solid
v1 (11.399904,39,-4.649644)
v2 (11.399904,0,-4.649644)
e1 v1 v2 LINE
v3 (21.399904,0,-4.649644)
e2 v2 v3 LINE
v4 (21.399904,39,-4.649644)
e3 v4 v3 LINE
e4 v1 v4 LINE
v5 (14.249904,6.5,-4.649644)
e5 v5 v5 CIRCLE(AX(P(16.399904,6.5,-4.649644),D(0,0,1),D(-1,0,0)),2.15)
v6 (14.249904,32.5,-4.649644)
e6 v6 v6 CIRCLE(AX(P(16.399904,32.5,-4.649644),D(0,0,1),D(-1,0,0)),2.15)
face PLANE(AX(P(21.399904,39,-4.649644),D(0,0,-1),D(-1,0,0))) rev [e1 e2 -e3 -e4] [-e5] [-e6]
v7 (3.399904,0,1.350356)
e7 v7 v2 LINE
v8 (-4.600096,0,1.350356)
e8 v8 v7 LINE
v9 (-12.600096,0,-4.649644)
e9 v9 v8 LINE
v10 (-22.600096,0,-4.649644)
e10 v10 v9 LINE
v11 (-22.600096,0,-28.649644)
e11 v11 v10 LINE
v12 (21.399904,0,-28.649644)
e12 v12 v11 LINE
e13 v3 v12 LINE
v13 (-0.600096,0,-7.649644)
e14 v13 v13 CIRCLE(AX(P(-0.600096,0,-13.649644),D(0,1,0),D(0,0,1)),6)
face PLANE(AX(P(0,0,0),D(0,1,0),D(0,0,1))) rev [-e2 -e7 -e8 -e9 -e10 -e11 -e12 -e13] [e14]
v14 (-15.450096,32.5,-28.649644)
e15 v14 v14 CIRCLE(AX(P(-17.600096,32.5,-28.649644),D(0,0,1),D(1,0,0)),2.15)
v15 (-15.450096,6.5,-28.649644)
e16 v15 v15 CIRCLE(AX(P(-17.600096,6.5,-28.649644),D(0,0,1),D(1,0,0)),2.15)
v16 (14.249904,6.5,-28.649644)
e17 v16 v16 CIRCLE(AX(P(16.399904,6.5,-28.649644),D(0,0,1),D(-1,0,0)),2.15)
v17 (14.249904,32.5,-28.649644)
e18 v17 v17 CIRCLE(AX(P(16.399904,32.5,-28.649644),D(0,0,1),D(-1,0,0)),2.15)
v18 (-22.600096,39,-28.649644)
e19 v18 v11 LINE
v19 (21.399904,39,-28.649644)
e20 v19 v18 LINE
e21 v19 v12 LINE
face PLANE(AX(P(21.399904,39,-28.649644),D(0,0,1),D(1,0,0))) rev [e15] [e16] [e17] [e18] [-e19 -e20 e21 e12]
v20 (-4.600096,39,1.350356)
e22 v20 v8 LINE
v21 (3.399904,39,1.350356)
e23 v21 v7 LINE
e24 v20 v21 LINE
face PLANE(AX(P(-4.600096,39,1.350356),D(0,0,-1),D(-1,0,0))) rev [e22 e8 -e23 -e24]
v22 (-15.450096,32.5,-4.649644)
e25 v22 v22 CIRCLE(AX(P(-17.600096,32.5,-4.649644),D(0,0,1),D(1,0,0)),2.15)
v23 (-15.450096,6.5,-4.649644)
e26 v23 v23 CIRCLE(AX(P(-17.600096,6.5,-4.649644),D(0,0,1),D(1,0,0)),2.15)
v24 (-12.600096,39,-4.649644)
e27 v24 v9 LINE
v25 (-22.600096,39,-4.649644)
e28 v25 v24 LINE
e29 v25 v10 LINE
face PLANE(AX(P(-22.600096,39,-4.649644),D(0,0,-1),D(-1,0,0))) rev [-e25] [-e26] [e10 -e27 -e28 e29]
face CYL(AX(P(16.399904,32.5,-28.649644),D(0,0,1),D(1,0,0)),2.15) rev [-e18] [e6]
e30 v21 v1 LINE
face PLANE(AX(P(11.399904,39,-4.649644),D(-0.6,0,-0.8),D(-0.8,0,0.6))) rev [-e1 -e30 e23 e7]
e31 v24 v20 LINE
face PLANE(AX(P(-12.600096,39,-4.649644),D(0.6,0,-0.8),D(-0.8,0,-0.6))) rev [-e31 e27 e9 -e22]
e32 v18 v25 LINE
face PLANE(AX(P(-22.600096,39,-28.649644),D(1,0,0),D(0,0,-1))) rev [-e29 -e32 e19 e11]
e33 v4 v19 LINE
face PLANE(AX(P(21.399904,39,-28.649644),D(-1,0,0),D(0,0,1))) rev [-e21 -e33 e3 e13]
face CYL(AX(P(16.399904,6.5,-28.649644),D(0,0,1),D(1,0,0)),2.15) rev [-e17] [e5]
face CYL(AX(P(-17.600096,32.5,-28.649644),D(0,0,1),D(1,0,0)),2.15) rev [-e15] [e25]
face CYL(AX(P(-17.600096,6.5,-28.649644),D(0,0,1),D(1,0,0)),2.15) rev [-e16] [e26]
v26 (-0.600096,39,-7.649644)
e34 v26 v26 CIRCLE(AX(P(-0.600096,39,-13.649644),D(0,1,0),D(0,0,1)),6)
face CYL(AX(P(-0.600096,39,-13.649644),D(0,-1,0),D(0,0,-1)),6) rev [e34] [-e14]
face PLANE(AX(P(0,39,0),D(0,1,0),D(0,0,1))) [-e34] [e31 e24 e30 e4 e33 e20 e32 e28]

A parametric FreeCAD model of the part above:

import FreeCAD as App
import Part
import Sketcher
from FreeCAD import Vector
Q = App.Units.Quantity

doc = App.newDocument("Part")
params = doc.addObject("Spreadsheet::Sheet", "Params")
for row, (alias, value) in enumerate([
    ("sketch1_diameter", "12 mm"),
    ("sketch1_width", "44 mm"),
    ("sketch1_width2", "10 mm"),
    ("sketch1_width3", "8 mm"),
    ("sketch1_height", "24 mm"),
    ("pad1_length", "39 mm"),
    ("sketch2_diameter", "4.3 mm"),
], start=1):
    params.set(f"A{row}", alias)
    params.set(f"B{row}", "=" + value)
    params.setAlias(f"B{row}", alias)

body = doc.addObject("PartDesign::Body", "Body")

# Sketch on XZ plane
sketch1 = body.newObject("Sketcher::SketchObject", "Sketch")
sketch1.AttachmentSupport = (doc.getObject("XZ_Plane"), [""])
sketch1.MapMode = "FlatFace"
sketch1.addGeometry([
    Part.LineSegment(Vector(21.399904, -28.649644, 0), Vector(-22.600096, -28.649644, 0)),  # 0
    Part.LineSegment(Vector(-22.600096, -28.649644, 0), Vector(-22.600096, -4.649644, 0)),  # 1
    Part.LineSegment(Vector(-22.600096, -4.649644, 0), Vector(-12.600096, -4.649644, 0)),  # 2
    Part.LineSegment(Vector(-12.600096, -4.649644, 0), Vector(-4.600096, 1.350356, 0)),  # 3
    Part.LineSegment(Vector(-4.600096, 1.350356, 0), Vector(3.399904, 1.350356, 0)),  # 4
    Part.LineSegment(Vector(3.399904, 1.350356, 0), Vector(11.399904, -4.649644, 0)),  # 5
    Part.LineSegment(Vector(11.399904, -4.649644, 0), Vector(21.399904, -4.649644, 0)),  # 6
    Part.LineSegment(Vector(21.399904, -4.649644, 0), Vector(21.399904, -28.649644, 0)),  # 7
    Part.Circle(Vector(-0.600096, -13.649644, 0), Vector(0, 0, 1), 6),  # 8
], False)
sketch1.addConstraint([
    Sketcher.Constraint("Coincident", 0, 2, 1, 1),
    Sketcher.Constraint("Coincident", 1, 2, 2, 1),
    Sketcher.Constraint("Coincident", 2, 2, 3, 1),
    Sketcher.Constraint("Coincident", 3, 2, 4, 1),
    Sketcher.Constraint("Coincident", 4, 2, 5, 1),
    Sketcher.Constraint("Coincident", 5, 2, 6, 1),
    Sketcher.Constraint("Coincident", 6, 2, 7, 1),
    Sketcher.Constraint("Coincident", 7, 2, 0, 1),
    Sketcher.Constraint("Horizontal", 0),
    Sketcher.Constraint("Vertical", 1),
    Sketcher.Constraint("Horizontal", 2),
    Sketcher.Constraint("Horizontal", 4),
    Sketcher.Constraint("Horizontal", 6),
    Sketcher.Constraint("Vertical", 7),
    Sketcher.Constraint("Horizontal", 2, 2, 5, 2),
    Sketcher.Constraint("Equal", 2, 6),
    Sketcher.Constraint("Equal", 3, 5),
    Sketcher.Constraint("Diameter", 8, Q("12 mm")),
    Sketcher.Constraint("DistanceX", 0, 2, 0, 1, Q("44 mm")),
    Sketcher.Constraint("DistanceX", 2, 1, 2, 2, Q("10 mm")),
    Sketcher.Constraint("DistanceX", 4, 1, 4, 2, Q("8 mm")),
    Sketcher.Constraint("DistanceY", 1, 1, 1, 2, Q("24 mm")),
    Sketcher.Constraint("Distance", 3, Q("10 mm")),
    Sketcher.Constraint("DistanceX", 0, 2, 8, 3, Q("22 mm")),
    Sketcher.Constraint("DistanceY", 0, 2, 8, 3, Q("15 mm")),
    Sketcher.Constraint("DistanceX", 8, 3, -1, 1, Q("0.600096 mm")),
    Sketcher.Constraint("DistanceY", 8, 3, -1, 1, Q("13.649644 mm")),
])
sketch1.setExpression("Constraints[17]", "Params.sketch1_diameter")
sketch1.setExpression("Constraints[18]", "Params.sketch1_width")
sketch1.setExpression("Constraints[19]", "Params.sketch1_width2")
sketch1.setExpression("Constraints[20]", "Params.sketch1_width3")
sketch1.setExpression("Constraints[21]", "Params.sketch1_height")
pad1 = body.newObject("PartDesign::Pad", "Pad")
pad1.Profile = sketch1
pad1.setExpression("Length", "Params.pad1_length")
pad1.Reversed = True

# Sketch on XY plane
sketch2 = body.newObject("Sketcher::SketchObject", "Sketch001")
sketch2.AttachmentSupport = (doc.getObject("XY_Plane"), [""])
sketch2.MapMode = "FlatFace"
sketch2.AttachmentOffset = App.Placement(Vector(0, 0, -4.649644), App.Rotation())
sketch2.addGeometry([
    Part.Circle(Vector(-17.600096, 32.5, 0), Vector(0, 0, 1), 2.15),
    Part.Circle(Vector(-17.600096, 6.5, 0), Vector(0, 0, 1), 2.15),
    Part.Circle(Vector(16.399904, 6.5, 0), Vector(0, 0, 1), 2.15),
    Part.Circle(Vector(16.399904, 32.5, 0), Vector(0, 0, 1), 2.15),
], False)
sketch2.addConstraint([
    Sketcher.Constraint("Equal", 0, 1),
    Sketcher.Constraint("Equal", 1, 2),
    Sketcher.Constraint("Equal", 2, 3),
    Sketcher.Constraint("Horizontal", 1, 3, 2, 3),
    Sketcher.Constraint("Horizontal", 0, 3, 3, 3),
    Sketcher.Constraint("Vertical", 0, 3, 1, 3),
    Sketcher.Constraint("Vertical", 2, 3, 3, 3),
    Sketcher.Constraint("Diameter", 0, Q("4.3 mm")),
    Sketcher.Constraint("DistanceY", 1, 3, 0, 3, Q("26 mm")),
    Sketcher.Constraint("DistanceX", 1, 3, 2, 3, Q("34 mm")),
    Sketcher.Constraint("DistanceY", -1, 1, 0, 3, Q("32.5 mm")),
    Sketcher.Constraint("DistanceX", 0, 3, -1, 1, Q("17.600096 mm")),
])
sketch2.setExpression("Constraints[7]", "Params.sketch2_diameter")
pocket1 = body.newObject("PartDesign::Pocket", "Pocket")
pocket1.Profile = sketch2
pocket1.Type = "ThroughAll"

doc.recompute()
